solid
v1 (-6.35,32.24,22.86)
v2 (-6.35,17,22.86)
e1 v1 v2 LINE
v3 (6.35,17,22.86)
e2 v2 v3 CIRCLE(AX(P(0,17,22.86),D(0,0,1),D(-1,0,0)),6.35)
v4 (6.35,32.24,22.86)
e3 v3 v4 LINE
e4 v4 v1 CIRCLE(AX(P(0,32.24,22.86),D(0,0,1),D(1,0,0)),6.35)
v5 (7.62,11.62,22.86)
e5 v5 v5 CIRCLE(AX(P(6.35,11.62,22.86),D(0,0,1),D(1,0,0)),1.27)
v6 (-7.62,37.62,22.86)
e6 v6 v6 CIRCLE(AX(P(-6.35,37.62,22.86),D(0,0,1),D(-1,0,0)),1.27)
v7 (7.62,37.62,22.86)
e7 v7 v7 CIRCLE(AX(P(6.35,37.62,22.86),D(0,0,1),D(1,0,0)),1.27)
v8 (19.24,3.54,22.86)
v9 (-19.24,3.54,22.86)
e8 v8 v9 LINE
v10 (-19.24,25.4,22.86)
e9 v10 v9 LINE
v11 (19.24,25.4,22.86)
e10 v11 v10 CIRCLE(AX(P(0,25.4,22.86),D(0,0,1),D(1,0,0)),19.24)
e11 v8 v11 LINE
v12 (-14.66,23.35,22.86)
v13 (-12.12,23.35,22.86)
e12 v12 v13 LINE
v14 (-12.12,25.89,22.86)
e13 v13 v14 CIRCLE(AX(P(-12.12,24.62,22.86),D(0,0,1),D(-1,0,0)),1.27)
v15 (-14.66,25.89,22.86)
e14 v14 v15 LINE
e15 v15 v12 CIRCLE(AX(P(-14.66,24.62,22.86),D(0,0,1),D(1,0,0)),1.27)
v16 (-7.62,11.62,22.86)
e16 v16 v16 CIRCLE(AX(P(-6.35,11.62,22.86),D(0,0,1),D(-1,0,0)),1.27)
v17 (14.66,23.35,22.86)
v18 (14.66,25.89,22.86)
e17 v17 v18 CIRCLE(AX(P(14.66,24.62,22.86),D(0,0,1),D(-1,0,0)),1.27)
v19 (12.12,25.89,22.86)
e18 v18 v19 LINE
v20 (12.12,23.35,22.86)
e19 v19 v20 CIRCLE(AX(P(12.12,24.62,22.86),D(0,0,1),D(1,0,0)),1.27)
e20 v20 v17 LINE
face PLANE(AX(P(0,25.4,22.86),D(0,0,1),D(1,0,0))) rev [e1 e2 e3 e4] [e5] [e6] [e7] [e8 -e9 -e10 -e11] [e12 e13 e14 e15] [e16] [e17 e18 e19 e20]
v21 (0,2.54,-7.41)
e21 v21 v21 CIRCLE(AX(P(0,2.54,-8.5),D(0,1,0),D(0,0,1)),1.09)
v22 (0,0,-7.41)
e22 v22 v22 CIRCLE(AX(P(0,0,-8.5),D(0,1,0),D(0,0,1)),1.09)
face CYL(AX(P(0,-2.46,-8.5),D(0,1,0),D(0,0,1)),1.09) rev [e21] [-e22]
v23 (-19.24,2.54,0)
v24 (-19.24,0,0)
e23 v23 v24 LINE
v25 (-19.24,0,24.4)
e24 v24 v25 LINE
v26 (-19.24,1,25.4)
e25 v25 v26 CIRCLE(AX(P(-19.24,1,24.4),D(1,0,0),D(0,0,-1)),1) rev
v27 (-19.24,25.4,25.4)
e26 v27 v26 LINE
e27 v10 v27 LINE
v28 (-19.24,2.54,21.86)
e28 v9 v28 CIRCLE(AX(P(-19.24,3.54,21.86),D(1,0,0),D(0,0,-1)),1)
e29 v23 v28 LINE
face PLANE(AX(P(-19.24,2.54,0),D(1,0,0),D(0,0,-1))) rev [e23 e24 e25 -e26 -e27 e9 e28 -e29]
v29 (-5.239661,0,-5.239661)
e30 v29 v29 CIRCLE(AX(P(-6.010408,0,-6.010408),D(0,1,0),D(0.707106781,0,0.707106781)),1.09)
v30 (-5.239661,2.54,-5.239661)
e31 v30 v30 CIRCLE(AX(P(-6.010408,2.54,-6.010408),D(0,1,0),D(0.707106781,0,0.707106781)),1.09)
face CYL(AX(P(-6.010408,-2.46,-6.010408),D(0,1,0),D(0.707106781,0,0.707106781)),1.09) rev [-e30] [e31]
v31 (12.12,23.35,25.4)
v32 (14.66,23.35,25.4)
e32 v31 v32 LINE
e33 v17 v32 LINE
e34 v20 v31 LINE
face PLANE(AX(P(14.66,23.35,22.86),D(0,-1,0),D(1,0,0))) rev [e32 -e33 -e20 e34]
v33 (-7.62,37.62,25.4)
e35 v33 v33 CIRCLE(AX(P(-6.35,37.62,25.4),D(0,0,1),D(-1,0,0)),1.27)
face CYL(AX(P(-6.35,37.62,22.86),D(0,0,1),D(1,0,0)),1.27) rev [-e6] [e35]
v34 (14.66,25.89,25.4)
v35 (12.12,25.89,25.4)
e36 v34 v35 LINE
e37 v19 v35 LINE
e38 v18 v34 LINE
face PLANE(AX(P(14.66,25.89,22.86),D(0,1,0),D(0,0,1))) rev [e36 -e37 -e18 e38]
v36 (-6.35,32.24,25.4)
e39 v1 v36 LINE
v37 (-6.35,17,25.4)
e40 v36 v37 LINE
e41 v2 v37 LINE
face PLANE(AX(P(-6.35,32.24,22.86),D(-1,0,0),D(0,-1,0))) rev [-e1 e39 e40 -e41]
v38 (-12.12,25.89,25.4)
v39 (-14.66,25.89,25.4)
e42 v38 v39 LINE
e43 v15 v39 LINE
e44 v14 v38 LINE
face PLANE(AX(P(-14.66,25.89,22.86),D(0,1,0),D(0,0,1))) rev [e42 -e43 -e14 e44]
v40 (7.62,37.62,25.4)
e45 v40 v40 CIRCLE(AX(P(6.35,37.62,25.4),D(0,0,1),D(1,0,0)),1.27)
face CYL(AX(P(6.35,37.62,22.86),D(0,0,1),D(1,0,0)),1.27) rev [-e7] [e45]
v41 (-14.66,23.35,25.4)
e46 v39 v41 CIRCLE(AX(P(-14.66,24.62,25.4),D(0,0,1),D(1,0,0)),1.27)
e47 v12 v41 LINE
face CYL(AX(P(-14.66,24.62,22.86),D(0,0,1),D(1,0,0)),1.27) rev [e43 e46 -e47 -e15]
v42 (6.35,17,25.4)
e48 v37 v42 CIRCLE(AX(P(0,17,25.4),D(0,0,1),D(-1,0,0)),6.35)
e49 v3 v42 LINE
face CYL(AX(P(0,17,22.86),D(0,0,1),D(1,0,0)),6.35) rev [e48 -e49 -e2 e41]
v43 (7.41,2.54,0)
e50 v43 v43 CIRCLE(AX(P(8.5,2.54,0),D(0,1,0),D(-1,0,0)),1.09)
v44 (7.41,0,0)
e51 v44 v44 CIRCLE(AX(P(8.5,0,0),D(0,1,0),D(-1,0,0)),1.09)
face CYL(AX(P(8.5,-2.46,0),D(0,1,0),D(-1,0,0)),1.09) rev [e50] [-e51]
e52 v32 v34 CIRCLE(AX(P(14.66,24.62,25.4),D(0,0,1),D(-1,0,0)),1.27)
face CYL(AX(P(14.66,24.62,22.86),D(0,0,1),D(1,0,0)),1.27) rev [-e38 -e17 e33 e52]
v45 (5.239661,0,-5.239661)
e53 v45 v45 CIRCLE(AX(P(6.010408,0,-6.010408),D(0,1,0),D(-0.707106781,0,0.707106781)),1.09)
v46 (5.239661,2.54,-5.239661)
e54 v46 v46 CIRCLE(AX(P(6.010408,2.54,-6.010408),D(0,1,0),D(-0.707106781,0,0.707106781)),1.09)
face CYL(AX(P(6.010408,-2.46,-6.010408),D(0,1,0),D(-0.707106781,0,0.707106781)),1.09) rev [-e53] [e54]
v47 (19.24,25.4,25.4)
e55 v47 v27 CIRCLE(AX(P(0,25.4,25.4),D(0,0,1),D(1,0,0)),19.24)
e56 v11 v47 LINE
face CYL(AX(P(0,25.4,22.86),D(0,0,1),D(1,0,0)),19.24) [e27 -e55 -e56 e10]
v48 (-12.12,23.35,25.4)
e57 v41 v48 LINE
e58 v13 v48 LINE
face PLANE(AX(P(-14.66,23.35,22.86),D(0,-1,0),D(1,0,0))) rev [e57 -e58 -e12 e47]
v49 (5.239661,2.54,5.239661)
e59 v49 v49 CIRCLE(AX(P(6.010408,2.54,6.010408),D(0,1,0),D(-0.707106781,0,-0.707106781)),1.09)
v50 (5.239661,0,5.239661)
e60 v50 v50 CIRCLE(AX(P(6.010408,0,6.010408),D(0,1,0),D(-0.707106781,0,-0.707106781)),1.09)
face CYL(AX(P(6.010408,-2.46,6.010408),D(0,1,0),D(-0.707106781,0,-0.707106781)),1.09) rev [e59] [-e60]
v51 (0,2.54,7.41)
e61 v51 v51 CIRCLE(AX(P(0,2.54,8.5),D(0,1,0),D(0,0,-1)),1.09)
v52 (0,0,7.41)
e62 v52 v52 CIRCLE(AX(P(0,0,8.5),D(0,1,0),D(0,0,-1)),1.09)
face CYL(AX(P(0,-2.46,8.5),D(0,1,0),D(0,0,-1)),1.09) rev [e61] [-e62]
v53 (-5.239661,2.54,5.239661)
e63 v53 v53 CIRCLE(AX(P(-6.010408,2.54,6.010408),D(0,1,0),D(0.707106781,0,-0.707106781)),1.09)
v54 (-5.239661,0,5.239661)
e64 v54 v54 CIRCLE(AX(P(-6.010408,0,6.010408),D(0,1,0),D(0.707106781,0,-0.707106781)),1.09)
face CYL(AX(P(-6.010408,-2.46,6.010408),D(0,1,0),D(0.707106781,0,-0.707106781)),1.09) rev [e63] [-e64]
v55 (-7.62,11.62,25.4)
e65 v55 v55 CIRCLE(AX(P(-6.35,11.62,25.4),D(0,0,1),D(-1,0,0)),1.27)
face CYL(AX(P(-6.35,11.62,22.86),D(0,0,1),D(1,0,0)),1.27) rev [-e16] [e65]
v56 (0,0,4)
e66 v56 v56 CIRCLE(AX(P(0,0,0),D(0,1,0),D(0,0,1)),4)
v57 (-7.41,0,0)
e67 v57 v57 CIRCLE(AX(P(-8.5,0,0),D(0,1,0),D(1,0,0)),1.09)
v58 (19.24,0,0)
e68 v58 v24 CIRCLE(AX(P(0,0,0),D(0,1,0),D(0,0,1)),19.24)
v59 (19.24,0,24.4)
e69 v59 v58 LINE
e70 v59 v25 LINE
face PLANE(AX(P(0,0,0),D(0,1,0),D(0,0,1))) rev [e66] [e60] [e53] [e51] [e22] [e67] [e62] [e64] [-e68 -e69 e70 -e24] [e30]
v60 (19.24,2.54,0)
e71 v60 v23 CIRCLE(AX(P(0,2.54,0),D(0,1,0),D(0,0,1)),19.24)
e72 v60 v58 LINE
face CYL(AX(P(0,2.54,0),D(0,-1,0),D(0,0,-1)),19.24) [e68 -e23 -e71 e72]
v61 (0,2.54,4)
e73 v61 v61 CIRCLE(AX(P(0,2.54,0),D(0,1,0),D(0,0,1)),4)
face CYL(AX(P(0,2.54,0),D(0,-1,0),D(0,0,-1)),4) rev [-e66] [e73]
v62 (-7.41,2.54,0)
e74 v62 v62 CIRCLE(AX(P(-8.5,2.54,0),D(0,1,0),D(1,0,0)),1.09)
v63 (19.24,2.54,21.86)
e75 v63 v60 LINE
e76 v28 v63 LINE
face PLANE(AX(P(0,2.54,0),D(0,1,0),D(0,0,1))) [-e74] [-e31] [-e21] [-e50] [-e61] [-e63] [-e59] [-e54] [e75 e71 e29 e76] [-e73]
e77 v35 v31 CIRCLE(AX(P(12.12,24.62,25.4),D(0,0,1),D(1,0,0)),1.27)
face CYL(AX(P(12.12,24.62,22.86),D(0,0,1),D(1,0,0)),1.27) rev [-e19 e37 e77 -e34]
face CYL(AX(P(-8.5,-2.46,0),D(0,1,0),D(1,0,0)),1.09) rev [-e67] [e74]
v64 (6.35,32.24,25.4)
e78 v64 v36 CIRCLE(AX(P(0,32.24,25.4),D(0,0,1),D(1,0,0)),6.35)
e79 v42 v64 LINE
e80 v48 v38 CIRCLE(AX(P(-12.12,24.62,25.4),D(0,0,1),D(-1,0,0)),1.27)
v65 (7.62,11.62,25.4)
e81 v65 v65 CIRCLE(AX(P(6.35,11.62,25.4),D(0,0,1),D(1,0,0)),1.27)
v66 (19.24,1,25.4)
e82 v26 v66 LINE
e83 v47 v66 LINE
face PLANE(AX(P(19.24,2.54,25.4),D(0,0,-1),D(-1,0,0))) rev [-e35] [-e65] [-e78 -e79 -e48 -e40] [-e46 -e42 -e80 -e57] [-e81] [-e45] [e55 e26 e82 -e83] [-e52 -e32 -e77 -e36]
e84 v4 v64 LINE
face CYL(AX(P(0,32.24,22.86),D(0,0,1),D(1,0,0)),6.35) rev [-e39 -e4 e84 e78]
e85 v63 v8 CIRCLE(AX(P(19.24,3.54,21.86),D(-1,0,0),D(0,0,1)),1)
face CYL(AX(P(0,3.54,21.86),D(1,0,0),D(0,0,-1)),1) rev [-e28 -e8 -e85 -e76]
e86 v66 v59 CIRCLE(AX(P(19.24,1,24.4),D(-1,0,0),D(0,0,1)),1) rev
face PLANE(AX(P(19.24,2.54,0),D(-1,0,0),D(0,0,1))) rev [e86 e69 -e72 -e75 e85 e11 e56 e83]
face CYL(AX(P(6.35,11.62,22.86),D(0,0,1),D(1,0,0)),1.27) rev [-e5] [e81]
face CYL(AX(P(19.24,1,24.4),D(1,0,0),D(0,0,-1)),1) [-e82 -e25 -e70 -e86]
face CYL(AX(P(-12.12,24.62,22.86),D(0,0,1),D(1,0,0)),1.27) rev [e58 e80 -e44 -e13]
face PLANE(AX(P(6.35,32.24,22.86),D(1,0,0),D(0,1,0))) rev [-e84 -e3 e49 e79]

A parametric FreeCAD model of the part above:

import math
import FreeCAD as App
import Part
import Sketcher

V = App.Vector
Q = App.Units.Quantity


def edges_at(feature, points):
    """Names of the edges that pass closest to the given points."""
    edges = feature.Shape.Edges
    near = lambda p: min(range(len(edges)), key=lambda i: edges[i].distToShape(Part.Vertex(*p))[0])
    return sorted({f"Edge{near(p) + 1}" for p in points})

doc = App.newDocument("Part")
params = doc.addObject("Spreadsheet::Sheet", "Params")
for row, (alias, value) in enumerate([
    ("sketch1_height", "1 in"),
    ("pad1_length", "0.1 in"),
    ("pocket1_length", "10 mm"),
    ("sketch3_diameter", "0.1 in"),
    ("sketch3_radius", "0.25 in"),
    ("sketch3_width", "0.1 in"),
    ("sketch3_height", "0.9 in"),
    ("sketch3_height2", "0.6 in"),
    ("pad2_length", "0.1 in"),
    ("fillet_radius", "1 mm"),
], start=1):
    params.set(f"A{row}", alias)
    params.set(f"B{row}", "=" + value)
    params.setAlias(f"B{row}", alias)

body = doc.addObject("PartDesign::Body", "Body")

sketch1 = doc.addObject("Sketcher::SketchObject", "Sketch")
body.addObject(sketch1)
sketch1.AttachmentSupport = (doc.XZ_Plane, [""])
sketch1.MapMode = "FlatFace"
sketch1.addGeometry([
    Part.LineSegment(V(-19.2, 0, 0), V(-19.2, 25.4, 0)),
    Part.LineSegment(V(-19.2, 25.4, 0), V(19.2, 25.4, 0)),
    Part.LineSegment(V(19.2, 25.4, 0), V(19.2, 0, 0)),
    Part.ArcOfCircle(Part.Circle(V(0, 0, 0), V(0, 0, 1), 19.2), math.radians(180), math.radians(360)),
    Part.Circle(V(0, 0, 0), V(0, 0, 1), 4),
], False)
sketch1.addConstraint([
    Sketcher.Constraint("Coincident", 0, 2, 1, 1),
    Sketcher.Constraint("Coincident", 1, 2, 2, 1),
    Sketcher.Constraint("Tangent", 2, 2, 3, 2),
    Sketcher.Constraint("Tangent", 3, 1, 0, 1),
    Sketcher.Constraint("Vertical", 0),
    Sketcher.Constraint("Horizontal", 1),
    Sketcher.Constraint("Vertical", 2),
    Sketcher.Constraint("Coincident", 3, 3, -1, 1),
    Sketcher.Constraint("Coincident", 4, 3, -1, 1),
    Sketcher.Constraint("DistanceY", 0, 1, 0, 2, Q("1 in")),
    Sketcher.Constraint("Diameter", 4, Q("8 mm")),
    Sketcher.Constraint("Radius", 3, Q("19.24 mm")),
])
sketch1.setExpression("Constraints[9]", "Params.sketch1_height")
pad1 = doc.addObject("PartDesign::Pad", "Pad")
body.addObject(pad1)
pad1.Profile = sketch1
pad1.setExpression("Length", "Params.pad1_length")
pad1.Reversed = True

sketch2 = doc.addObject("Sketcher::SketchObject", "Sketch001")
body.addObject(sketch2)
sketch2.AttachmentSupport = (doc.XZ_Plane, [""])
sketch2.MapMode = "FlatFace"
sketch2.AttachmentOffset = App.Placement(V(0, 0, -0.1 * 25.4), App.Rotation())
sketch2.addGeometry(Part.Circle(V(0, -8.5, 0), V(0, 0, 1), 1.1), False)
sketch2.addConstraint([
    Sketcher.Constraint("PointOnObject", 0, 3, -2),
    Sketcher.Constraint("Diameter", 0, Q("2.18 mm")),
    Sketcher.Constraint("DistanceY", 0, 3, -1, 1, Q("8.5 mm")),
])
pocket1 = doc.addObject("PartDesign::Pocket", "Pocket")
body.addObject(pocket1)
pocket1.Profile = sketch2
pocket1.setExpression("Length", "Params.pocket1_length")
pocket1.Midplane = True
doc.recompute()

polarpattern = doc.addObject("PartDesign::PolarPattern", "PolarPattern")
body.addObject(polarpattern)
polarpattern.Originals = [pocket1]
polarpattern.Axis = (doc.Y_Axis, [""])
polarpattern.Angle = 360
polarpattern.Occurrences = 8
body.Tip = polarpattern

sketch3 = doc.addObject("Sketcher::SketchObject", "Sketch002")
body.addObject(sketch3)
sketch3.AttachmentSupport = (doc.XY_Plane, [""])
sketch3.MapMode = "FlatFace"
sketch3.AttachmentOffset = App.Placement(V(0, 0, 1 * 25.4), App.Rotation())
sketch3.addGeometry([
    Part.LineSegment(V(19.2, 2.5, 0), V(19.2, 25.4, 0)),
    Part.ArcOfCircle(Part.Circle(V(0, 25.4, 0), V(0, 0, 1), 19.2), math.radians(0), math.radians(180)),
    Part.LineSegment(V(-19.2, 25.4, 0), V(-19.2, 2.5, 0)),
    Part.LineSegment(V(-19.2, 2.5, 0), V(19.2, 2.5, 0)),
    Part.Circle(V(-6.3, 11.6, 0), V(0, 0, 1), 1.3),
    Part.Circle(V(6.3, 11.6, 0), V(0, 0, 1), 1.3),
    Part.LineSegment(V(-12.1, 23.4, 0), V(-14.7, 23.4, 0)),
    Part.ArcOfCircle(Part.Circle(V(-14.7, 24.6, 0), V(0, 0, 1), 1.3), math.radians(90), math.radians(270)),
    Part.LineSegment(V(-14.7, 25.9, 0), V(-12.1, 25.9, 0)),
    Part.ArcOfCircle(Part.Circle(V(-12.1, 24.6, 0), V(0, 0, 1), 1.3), math.radians(-90), math.radians(90)),
    Part.ArcOfCircle(Part.Circle(V(0, 32.2, 0), V(0, 0, 1), 6.3), math.radians(0), math.radians(180)),
    Part.LineSegment(V(6.3, 32.2, 0), V(6.3, 17, 0)),
    Part.ArcOfCircle(Part.Circle(V(0, 17, 0), V(0, 0, 1), 6.3), math.radians(180), math.radians(360)),
    Part.LineSegment(V(-6.3, 17, 0), V(-6.3, 32.2, 0)),
    Part.Circle(V(-6.3, 37.6, 0), V(0, 0, 1), 1.3),
    Part.LineSegment(V(12.1, 25.9, 0), V(14.7, 25.9, 0)),
    Part.ArcOfCircle(Part.Circle(V(14.7, 24.6, 0), V(0, 0, 1), 1.3), math.radians(-90), math.radians(90)),
    Part.LineSegment(V(14.7, 23.4, 0), V(12.1, 23.4, 0)),
    Part.ArcOfCircle(Part.Circle(V(12.1, 24.6, 0), V(0, 0, 1), 1.3), math.radians(90), math.radians(270)),
    Part.Circle(V(6.3, 37.6, 0), V(0, 0, 1), 1.3),
], False)
sketch3.addConstraint([
    Sketcher.Constraint("Tangent", 0, 2, 1, 1),
    Sketcher.Constraint("Tangent", 1, 2, 2, 1),
    Sketcher.Constraint("Coincident", 2, 2, 3, 1),
    Sketcher.Constraint("Coincident", 3, 2, 0, 1),
    Sketcher.Constraint("Tangent", 6, 2, 7, 2),
    Sketcher.Constraint("Tangent", 7, 1, 8, 1),
    Sketcher.Constraint("Tangent", 8, 2, 9, 2),
    Sketcher.Constraint("Tangent", 9, 1, 6, 1),
    Sketcher.Constraint("Tangent", 10, 1, 11, 1),
    Sketcher.Constraint("Tangent", 11, 2, 12, 2),
    Sketcher.Constraint("Tangent", 12, 1, 13, 1),
    Sketcher.Constraint("Tangent", 13, 2, 10, 2),
    Sketcher.Constraint("Tangent", 15, 2, 16, 2),
    Sketcher.Constraint("Tangent", 16, 1, 17, 1),
    Sketcher.Constraint("Tangent", 17, 2, 18, 2),
    Sketcher.Constraint("Tangent", 18, 1, 15, 1),
    Sketcher.Constraint("Vertical", 0),
    Sketcher.Constraint("Vertical", 2),
    Sketcher.Constraint("Horizontal", 3),
    Sketcher.Constraint("Horizontal", 6),
    Sketcher.Constraint("Horizontal", 8),
    Sketcher.Constraint("Vertical", 11),
    Sketcher.Constraint("Vertical", 13),
    Sketcher.Constraint("Horizontal", 15),
    Sketcher.Constraint("Horizontal", 17),
    Sketcher.Constraint("Equal", 4, 5),
    Sketcher.Constraint("Equal", 5, 7),
    Sketcher.Constraint("Equal", 9, 14),
    Sketcher.Constraint("Equal", 14, 16),
    Sketcher.Constraint("Equal", 18, 19),
    Sketcher.Constraint("Symmetric", 4, 3, 5, 3, -2),
    Sketcher.Constraint("Symmetric", 7, 3, 16, 3, -2),
    Sketcher.Constraint("Symmetric", 14, 3, 19, 3, -2),
    Sketcher.Constraint("PointOnObject", 1, 3, -2),
    Sketcher.Constraint("PointOnObject", 10, 3, -2),
    Sketcher.Constraint("Vertical", 4, 3, 14, 3),
    Sketcher.Constraint("Vertical", 19, 3, 10, 1),
    Sketcher.Constraint("Equal", 8, 15),
    Sketcher.Constraint("Diameter", 4, Q("0.1 in")),
    Sketcher.Constraint("Radius", 10, Q("0.25 in")),
    Sketcher.Constraint("DistanceX", 6, 2, 6, 1, Q("0.1 in")),
    Sketcher.Constraint("DistanceY", 0, 1, 0, 2, Q("0.9 in")),
    Sketcher.Constraint("DistanceY", 11, 2, 11, 1, Q("0.6 in")),
    Sketcher.Constraint("DistanceY", -1, 1, 1, 3, Q("1 in")),
    Sketcher.Constraint("DistanceY", 9, 3, 10, 3, Q("0.3 in")),
    Sketcher.Constraint("Radius", 1, Q("19.24 mm")),
    Sketcher.Constraint("DistanceY", -1, 1, 4, 3, Q("11.62 mm")),
    Sketcher.Constraint("DistanceX", 7, 3, -1, 1, Q("14.66 mm")),
    Sketcher.Constraint("DistanceY", -1, 1, 7, 3, Q("24.62 mm")),
    Sketcher.Constraint("DistanceY", -1, 1, 14, 3, Q("37.62 mm")),
])
sketch3.setExpression("Constraints[38]", "Params.sketch3_diameter")
sketch3.setExpression("Constraints[39]", "Params.sketch3_radius")
sketch3.setExpression("Constraints[40]", "Params.sketch3_width")
sketch3.setExpression("Constraints[41]", "Params.sketch3_height")
sketch3.setExpression("Constraints[42]", "Params.sketch3_height2")
pad2 = doc.addObject("PartDesign::Pad", "Pad001")
body.addObject(pad2)
pad2.Profile = sketch3
pad2.setExpression("Length", "Params.pad2_length")
pad2.Reversed = True
doc.recompute()

fillet = doc.addObject("PartDesign::Fillet", "Fillet")
body.addObject(fillet)
fillet.Base = (pad2, edges_at(pad2, [(0, 0, 25.4), (0, 2.54, 22.86)]))
fillet.setExpression("Radius", "Params.fillet_radius")

doc.recompute()
